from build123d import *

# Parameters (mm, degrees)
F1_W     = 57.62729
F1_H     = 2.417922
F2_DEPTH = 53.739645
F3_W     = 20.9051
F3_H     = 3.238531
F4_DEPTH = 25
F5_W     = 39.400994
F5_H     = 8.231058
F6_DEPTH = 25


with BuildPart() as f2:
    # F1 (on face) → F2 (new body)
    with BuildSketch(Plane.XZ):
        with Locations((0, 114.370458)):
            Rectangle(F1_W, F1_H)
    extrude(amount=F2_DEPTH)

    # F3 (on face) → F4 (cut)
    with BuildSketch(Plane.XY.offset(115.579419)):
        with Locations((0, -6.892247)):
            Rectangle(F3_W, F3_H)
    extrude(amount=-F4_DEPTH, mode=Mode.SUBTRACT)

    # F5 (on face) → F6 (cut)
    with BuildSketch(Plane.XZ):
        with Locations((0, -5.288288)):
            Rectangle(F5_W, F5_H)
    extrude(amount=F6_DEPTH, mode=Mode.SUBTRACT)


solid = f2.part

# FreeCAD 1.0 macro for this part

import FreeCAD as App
import Part
import Sketcher

V = App.Vector
Q = App.Units.Quantity


def add_polygon(sketch, points):
    """Adds a closed chain of lines whose ends are joined by coincident constraints."""
    first, n = sketch.GeometryCount, len(points)
    for a, b in zip(points, points[1:] + points[:1]):
        sketch.addGeometry(Part.LineSegment(App.Vector(*a, 0), App.Vector(*b, 0)), False)
    for i in range(n):
        sketch.addConstraint(Sketcher.Constraint("Coincident", first + i, 2, first + (i + 1) % n, 1))

doc = App.newDocument("Part")
body = doc.addObject("PartDesign::Body", "Body")

# Sketch on XZ plane
sketch1 = body.newObject("Sketcher::SketchObject", "Sketch")
sketch1.AttachmentSupport = (doc.getObject("XZ_Plane"), [""])
sketch1.MapMode = "FlatFace"
add_polygon(sketch1, [(-28.813645, 115.579419), (-28.813645, 113.161497), (28.813645, 113.161497), (28.813645, 115.579419)])  # lines 0-3
sketch1.addConstraint([
    Sketcher.Constraint("Vertical", 0),
    Sketcher.Constraint("Horizontal", 1),
    Sketcher.Constraint("Vertical", 2),
    Sketcher.Constraint("Horizontal", 3),
    Sketcher.Constraint("DistanceX", 1, 1, 1, 2, Q("57.62729 mm")),
    Sketcher.Constraint("DistanceY", 0, 2, 0, 1, Q("2.417922 mm")),
    Sketcher.Constraint("DistanceY", -1, 1, 2, 2, Q("115.579419 mm")),
    Sketcher.Constraint("DistanceX", 0, 2, -1, 1, Q("28.813645 mm")),
])
pad1 = body.newObject("PartDesign::Pad", "Pad")
pad1.Profile = sketch1
pad1.Length = 53.739645

# Sketch on XY plane
sketch2 = body.newObject("Sketcher::SketchObject", "Sketch001")
sketch2.AttachmentSupport = (doc.getObject("XY_Plane"), [""])
sketch2.MapMode = "FlatFace"
sketch2.AttachmentOffset = App.Placement(V(0, 0, 115.579419), App.Rotation())
add_polygon(sketch2, [(-10.45255, -5.272982), (-10.45255, -8.511513), (10.45255, -8.511513), (10.45255, -5.272982)])  # lines 0-3
sketch2.addConstraint([
    Sketcher.Constraint("Vertical", 0),
    Sketcher.Constraint("Horizontal", 1),
    Sketcher.Constraint("Vertical", 2),
    Sketcher.Constraint("Horizontal", 3),
    Sketcher.Constraint("DistanceX", 1, 1, 1, 2, Q("20.9051 mm")),
    Sketcher.Constraint("DistanceY", 0, 2, 0, 1, Q("3.238531 mm")),
    Sketcher.Constraint("DistanceX", 0, 2, -1, 1, Q("10.45255 mm")),
    Sketcher.Constraint("DistanceY", 2, 2, -1, 1, Q("5.272982 mm")),
])
pocket1 = body.newObject("PartDesign::Pocket", "Pocket")
pocket1.Profile = sketch2
pocket1.Length = 25

# Sketch on XZ plane
sketch3 = body.newObject("Sketcher::SketchObject", "Sketch002")
sketch3.AttachmentSupport = (doc.getObject("XZ_Plane"), [""])
sketch3.MapMode = "FlatFace"
add_polygon(sketch3, [(-19.700497, -1.172759), (-19.700497, -9.403817), (19.700497, -9.403817), (19.700497, -1.172759)])  # lines 0-3
sketch3.addConstraint([
    Sketcher.Constraint("Vertical", 0),
    Sketcher.Constraint("Horizontal", 1),
    Sketcher.Constraint("Vertical", 2),
    Sketcher.Constraint("Horizontal", 3),
    Sketcher.Constraint("DistanceY", 0, 2, 0, 1, Q("8.231058 mm")),
    Sketcher.Constraint("DistanceX", 1, 1, 1, 2, Q("39.400994 mm")),
    Sketcher.Constraint("DistanceY", 2, 2, -1, 1, Q("1.172759 mm")),
    Sketcher.Constraint("DistanceX", 0, 2, -1, 1, Q("19.700497 mm")),
])
pocket2 = body.newObject("PartDesign::Pocket", "Pocket001")
pocket2.Profile = sketch3
pocket2.Length = 25
pocket2.Reversed = True

doc.recompute()
